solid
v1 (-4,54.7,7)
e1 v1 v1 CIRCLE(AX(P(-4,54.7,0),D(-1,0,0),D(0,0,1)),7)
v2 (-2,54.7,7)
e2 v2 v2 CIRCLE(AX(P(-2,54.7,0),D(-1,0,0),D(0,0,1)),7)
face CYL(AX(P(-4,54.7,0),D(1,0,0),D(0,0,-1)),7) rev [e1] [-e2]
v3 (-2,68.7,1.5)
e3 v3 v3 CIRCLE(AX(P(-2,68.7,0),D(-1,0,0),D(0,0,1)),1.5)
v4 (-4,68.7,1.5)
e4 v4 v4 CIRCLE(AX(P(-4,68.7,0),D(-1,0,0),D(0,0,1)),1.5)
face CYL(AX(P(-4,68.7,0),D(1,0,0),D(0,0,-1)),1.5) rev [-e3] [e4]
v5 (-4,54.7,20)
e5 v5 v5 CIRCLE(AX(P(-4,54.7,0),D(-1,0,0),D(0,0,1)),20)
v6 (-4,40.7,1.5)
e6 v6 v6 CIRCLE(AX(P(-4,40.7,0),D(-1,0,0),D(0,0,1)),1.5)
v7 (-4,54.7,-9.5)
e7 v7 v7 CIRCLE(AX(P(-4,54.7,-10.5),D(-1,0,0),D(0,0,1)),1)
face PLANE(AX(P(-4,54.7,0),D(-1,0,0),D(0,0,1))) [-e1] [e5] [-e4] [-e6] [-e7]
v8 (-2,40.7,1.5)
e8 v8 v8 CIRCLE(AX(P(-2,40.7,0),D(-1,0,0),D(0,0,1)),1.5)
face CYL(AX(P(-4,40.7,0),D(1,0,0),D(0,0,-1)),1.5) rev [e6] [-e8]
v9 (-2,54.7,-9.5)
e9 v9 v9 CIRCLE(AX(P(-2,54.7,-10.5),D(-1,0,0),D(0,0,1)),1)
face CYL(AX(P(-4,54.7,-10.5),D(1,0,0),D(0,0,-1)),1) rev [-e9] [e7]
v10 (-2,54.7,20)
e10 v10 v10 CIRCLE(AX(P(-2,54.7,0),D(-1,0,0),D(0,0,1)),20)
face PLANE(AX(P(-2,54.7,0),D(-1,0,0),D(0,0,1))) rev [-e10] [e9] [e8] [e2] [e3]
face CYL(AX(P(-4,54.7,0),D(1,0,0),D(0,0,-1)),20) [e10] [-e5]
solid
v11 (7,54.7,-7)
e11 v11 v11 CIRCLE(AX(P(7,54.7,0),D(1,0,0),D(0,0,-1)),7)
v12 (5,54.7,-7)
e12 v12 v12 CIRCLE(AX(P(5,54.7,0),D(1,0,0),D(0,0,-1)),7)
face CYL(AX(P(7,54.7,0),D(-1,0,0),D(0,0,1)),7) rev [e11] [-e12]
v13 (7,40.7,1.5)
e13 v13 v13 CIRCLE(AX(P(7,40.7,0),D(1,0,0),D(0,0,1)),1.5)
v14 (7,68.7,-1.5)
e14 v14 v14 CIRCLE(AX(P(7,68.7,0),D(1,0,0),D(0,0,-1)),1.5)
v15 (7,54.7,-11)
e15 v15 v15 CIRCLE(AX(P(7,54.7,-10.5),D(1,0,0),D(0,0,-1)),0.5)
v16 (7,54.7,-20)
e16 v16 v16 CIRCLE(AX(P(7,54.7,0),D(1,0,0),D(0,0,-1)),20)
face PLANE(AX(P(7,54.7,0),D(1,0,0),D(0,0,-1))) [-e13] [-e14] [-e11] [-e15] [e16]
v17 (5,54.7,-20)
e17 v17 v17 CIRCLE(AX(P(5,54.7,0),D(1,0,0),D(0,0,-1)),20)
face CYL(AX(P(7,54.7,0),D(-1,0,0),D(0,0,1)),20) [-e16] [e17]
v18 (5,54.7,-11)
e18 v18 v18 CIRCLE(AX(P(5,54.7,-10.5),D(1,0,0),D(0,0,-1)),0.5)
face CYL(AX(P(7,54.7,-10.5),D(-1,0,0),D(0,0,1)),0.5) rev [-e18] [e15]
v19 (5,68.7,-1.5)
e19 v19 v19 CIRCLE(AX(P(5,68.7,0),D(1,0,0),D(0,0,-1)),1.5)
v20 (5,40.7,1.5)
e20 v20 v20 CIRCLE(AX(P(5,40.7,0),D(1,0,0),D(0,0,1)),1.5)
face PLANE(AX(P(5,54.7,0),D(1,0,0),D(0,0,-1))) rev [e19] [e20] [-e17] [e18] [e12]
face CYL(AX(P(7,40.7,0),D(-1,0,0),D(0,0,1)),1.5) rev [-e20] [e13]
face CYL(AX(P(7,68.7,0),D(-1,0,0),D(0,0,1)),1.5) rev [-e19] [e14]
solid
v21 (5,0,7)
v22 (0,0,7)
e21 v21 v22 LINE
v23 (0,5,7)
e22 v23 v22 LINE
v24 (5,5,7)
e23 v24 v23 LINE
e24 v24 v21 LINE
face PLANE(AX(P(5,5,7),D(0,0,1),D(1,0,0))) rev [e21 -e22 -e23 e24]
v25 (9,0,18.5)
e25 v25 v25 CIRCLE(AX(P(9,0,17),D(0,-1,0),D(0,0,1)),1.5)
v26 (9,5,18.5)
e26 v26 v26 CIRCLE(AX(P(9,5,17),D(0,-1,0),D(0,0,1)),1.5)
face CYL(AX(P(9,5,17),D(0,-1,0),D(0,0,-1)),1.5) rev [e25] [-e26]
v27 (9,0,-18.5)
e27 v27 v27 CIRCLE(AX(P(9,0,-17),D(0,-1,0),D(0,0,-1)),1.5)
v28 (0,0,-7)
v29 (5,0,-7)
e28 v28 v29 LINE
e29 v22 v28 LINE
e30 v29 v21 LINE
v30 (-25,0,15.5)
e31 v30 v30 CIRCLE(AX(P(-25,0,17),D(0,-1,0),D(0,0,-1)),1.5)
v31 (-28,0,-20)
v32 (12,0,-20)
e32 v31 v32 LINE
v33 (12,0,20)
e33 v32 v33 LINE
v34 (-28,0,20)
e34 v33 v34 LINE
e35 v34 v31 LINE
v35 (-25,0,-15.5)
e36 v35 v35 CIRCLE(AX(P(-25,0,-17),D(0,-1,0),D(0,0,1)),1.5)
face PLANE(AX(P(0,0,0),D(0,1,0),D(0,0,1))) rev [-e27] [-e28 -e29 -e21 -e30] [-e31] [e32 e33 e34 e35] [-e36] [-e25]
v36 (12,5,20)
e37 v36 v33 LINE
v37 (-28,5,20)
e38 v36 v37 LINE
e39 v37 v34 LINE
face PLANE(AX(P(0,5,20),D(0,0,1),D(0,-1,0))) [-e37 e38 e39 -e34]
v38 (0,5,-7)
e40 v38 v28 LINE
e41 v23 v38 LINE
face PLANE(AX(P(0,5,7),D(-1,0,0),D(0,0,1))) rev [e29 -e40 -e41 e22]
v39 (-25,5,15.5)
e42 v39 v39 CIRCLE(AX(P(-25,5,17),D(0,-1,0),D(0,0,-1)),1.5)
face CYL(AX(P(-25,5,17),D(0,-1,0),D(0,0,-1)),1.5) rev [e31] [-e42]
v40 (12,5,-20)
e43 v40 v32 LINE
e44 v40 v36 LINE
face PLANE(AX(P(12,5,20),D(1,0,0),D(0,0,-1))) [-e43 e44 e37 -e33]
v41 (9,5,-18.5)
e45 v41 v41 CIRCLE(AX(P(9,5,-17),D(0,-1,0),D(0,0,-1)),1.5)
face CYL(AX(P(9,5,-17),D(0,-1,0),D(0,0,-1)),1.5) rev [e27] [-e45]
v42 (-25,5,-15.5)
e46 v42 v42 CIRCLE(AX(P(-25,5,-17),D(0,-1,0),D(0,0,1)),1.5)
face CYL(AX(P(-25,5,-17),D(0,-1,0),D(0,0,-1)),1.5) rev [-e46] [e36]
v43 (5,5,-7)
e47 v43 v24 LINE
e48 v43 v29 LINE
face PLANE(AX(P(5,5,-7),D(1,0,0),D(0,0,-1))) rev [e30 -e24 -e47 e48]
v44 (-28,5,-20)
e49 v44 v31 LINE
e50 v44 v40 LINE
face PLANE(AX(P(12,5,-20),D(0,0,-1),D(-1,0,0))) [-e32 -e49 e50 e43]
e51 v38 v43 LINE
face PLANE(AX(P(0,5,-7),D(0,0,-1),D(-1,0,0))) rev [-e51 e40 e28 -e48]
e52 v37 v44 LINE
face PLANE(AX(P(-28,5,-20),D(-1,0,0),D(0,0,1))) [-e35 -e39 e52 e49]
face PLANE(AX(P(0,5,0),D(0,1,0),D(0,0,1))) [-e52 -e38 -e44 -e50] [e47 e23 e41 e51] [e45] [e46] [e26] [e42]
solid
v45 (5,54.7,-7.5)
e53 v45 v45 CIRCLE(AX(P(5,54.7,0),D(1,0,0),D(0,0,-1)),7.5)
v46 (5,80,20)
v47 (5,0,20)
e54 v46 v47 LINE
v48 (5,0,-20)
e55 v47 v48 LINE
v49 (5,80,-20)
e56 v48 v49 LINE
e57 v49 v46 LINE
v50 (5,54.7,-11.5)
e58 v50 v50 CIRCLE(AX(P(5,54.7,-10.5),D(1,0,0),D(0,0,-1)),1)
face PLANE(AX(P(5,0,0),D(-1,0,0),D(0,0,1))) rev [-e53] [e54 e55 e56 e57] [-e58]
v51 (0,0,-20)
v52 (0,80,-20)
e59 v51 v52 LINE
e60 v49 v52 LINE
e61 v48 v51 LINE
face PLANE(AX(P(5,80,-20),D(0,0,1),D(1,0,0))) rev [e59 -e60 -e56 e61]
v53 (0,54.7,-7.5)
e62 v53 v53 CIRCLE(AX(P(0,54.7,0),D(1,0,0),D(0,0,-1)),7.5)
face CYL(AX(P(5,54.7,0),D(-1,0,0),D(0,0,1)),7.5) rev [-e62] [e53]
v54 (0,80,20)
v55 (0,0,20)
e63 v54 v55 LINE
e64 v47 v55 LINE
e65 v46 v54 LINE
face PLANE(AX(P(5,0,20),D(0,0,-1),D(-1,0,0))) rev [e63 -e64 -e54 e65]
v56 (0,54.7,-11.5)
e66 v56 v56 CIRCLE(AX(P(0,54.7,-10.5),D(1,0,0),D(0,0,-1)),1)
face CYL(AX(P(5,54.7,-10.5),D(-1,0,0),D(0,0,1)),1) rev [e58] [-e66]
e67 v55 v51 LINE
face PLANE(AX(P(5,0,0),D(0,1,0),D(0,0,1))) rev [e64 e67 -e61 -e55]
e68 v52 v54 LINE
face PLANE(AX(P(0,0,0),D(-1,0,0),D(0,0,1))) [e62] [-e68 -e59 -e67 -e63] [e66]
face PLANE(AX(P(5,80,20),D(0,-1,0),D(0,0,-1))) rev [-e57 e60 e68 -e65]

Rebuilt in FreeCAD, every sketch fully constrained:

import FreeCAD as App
import Part
import Sketcher

V = App.Vector
Q = App.Units.Quantity


def add_polygon(sketch, points):
    """Adds a closed chain of lines whose ends are joined by coincident constraints."""
    first, n = sketch.GeometryCount, len(points)
    for a, b in zip(points, points[1:] + points[:1]):
        sketch.addGeometry(Part.LineSegment(App.Vector(*a, 0), App.Vector(*b, 0)), False)
    for i in range(n):
        sketch.addConstraint(Sketcher.Constraint("Coincident", first + i, 2, first + (i + 1) % n, 1))

doc = App.newDocument("Part")
params = doc.addObject("Spreadsheet::Sheet", "Params")
for row, (alias, value) in enumerate([
    ("sketch1_diameter", "2 mm"),
    ("sketch1_diameter2", "15 mm"),
    ("sketch1_width", "80 mm"),
    ("sketch1_height", "40 mm"),
    ("pad1_length", "5 mm"),
    ("sketch2_diameter", "40 mm"),
    ("sketch2_diameter2", "3 mm"),
    ("sketch2_diameter3", "14 mm"),
    ("sketch2_diameter4", "1 mm"),
    ("pad2_length", "2 mm"),
    ("sketch3_diameter", "40 mm"),
    ("sketch3_diameter2", "3 mm"),
    ("sketch3_diameter3", "2 mm"),
    ("sketch3_diameter4", "14 mm"),
    ("pad3_length", "2 mm"),
    ("sketch4_diameter", "3 mm"),
    ("sketch4_width", "40 mm"),
    ("sketch4_width2", "5 mm"),
    ("sketch4_height", "14 mm"),
    ("pad4_length", "5 mm"),
], start=1):
    params.set(f"A{row}", alias)
    params.set(f"B{row}", "=" + value)
    params.setAlias(f"B{row}", alias)

body = doc.addObject("PartDesign::Body", "Body")

# Sketch on YZ plane
sketch1 = body.newObject("Sketcher::SketchObject", "Sketch")
sketch1.AttachmentSupport = (doc.getObject("YZ_Plane"), [""])
sketch1.MapMode = "FlatFace"
add_polygon(sketch1, [(0, 20), (0, -20), (80, -20), (80, 20)])  # lines 0-3
sketch1.addGeometry(Part.Circle(V(54.7, -10.5, 0), V(0, 0, 1), 1), False)  # 4
sketch1.addGeometry(Part.Circle(V(54.7, 0, 0), V(0, 0, 1), 7.5), False)  # 5
sketch1.addConstraint([
    Sketcher.Constraint("Vertical", 0),
    Sketcher.Constraint("Horizontal", 1),
    Sketcher.Constraint("Vertical", 2),
    Sketcher.Constraint("Horizontal", 3),
    Sketcher.Constraint("Symmetric", 0, 2, 3, 2, -1, 1),
    Sketcher.Constraint("PointOnObject", 5, 3, -1),
    Sketcher.Constraint("Vertical", 4, 3, 5, 3),
    Sketcher.Constraint("Diameter", 4, Q("2 mm")),
    Sketcher.Constraint("Diameter", 5, Q("15 mm")),
    Sketcher.Constraint("DistanceX", 1, 1, 1, 2, Q("80 mm")),
    Sketcher.Constraint("DistanceY", 0, 2, 0, 1, Q("40 mm")),
    Sketcher.Constraint("DistanceX", -1, 1, 4, 3, Q("54.7 mm")),
    Sketcher.Constraint("DistanceY", 4, 3, -1, 1, Q("10.5 mm")),
])
sketch1.setExpression("Constraints[11]", "Params.sketch1_diameter")
sketch1.setExpression("Constraints[12]", "Params.sketch1_diameter2")
sketch1.setExpression("Constraints[13]", "Params.sketch1_width")
sketch1.setExpression("Constraints[14]", "Params.sketch1_height")
pad1 = body.newObject("PartDesign::Pad", "Pad")
pad1.Profile = sketch1
pad1.setExpression("Length", "Params.pad1_length")
body2 = doc.addObject("PartDesign::Body", "Body001")

# Sketch on YZ plane
sketch2 = body2.newObject("Sketcher::SketchObject", "Sketch001")
sketch2.AttachmentSupport = (doc.getObject("YZ_Plane001"), [""])
sketch2.MapMode = "FlatFace"
sketch2.AttachmentOffset = App.Placement(V(0, 0, 5), App.Rotation())
sketch2.addGeometry([
    Part.Circle(V(54.7, 0, 0), V(0, 0, 1), 20),  # 0
    Part.Circle(V(40.7, 0, 0), V(0, 0, 1), 1.5),  # 1
    Part.Circle(V(54.7, 0, 0), V(0, 0, 1), 7),  # 2
    Part.Circle(V(68.7, 0, 0), V(0, 0, 1), 1.5),  # 3
    Part.Circle(V(54.7, -10.5, 0), V(0, 0, 1), 0.5),  # 4
], False)
sketch2.addConstraint([
    Sketcher.Constraint("Coincident", 2, 3, 0, 3),
    Sketcher.Constraint("Equal", 1, 3),
    Sketcher.Constraint("PointOnObject", 0, 3, -1),
    Sketcher.Constraint("PointOnObject", 1, 3, -1),
    Sketcher.Constraint("PointOnObject", 3, 3, -1),
    Sketcher.Constraint("Vertical", 2, 3, 4, 3),
    Sketcher.Constraint("Diameter", 0, Q("40 mm")),
    Sketcher.Constraint("Diameter", 1, Q("3 mm")),
    Sketcher.Constraint("Diameter", 2, Q("14 mm")),
    Sketcher.Constraint("Diameter", 4, Q("1 mm")),
    Sketcher.Constraint("DistanceX", 1, 3, 0, 3, Q("14 mm")),
    Sketcher.Constraint("DistanceX", 0, 3, 3, 3, Q("14 mm")),
    Sketcher.Constraint("DistanceX", -1, 1, 0, 3, Q("54.7 mm")),
    Sketcher.Constraint("DistanceY", 4, 3, -1, 1, Q("10.5 mm")),
])
sketch2.setExpression("Constraints[6]", "Params.sketch2_diameter")
sketch2.setExpression("Constraints[7]", "Params.sketch2_diameter2")
sketch2.setExpression("Constraints[8]", "Params.sketch2_diameter3")
sketch2.setExpression("Constraints[9]", "Params.sketch2_diameter4")
pad2 = body2.newObject("PartDesign::Pad", "Pad001")
pad2.Profile = sketch2
pad2.setExpression("Length", "Params.pad2_length")
body3 = doc.addObject("PartDesign::Body", "Body002")

# Sketch on YZ plane
sketch3 = body3.newObject("Sketcher::SketchObject", "Sketch002")
sketch3.AttachmentSupport = (doc.getObject("YZ_Plane002"), [""])
sketch3.MapMode = "FlatFace"
sketch3.AttachmentOffset = App.Placement(V(0, 0, -2), App.Rotation())
sketch3.addGeometry([
    Part.Circle(V(54.7, 0, 0), V(0, 0, 1), 20),  # 0
    Part.Circle(V(40.7, 0, 0), V(0, 0, 1), 1.5),  # 1
    Part.Circle(V(54.7, -10.5, 0), V(0, 0, 1), 1),  # 2
    Part.Circle(V(54.7, 0, 0), V(0, 0, 1), 7),  # 3
    Part.Circle(V(68.7, 0, 0), V(0, 0, 1), 1.5),  # 4
], False)
sketch3.addConstraint([
    Sketcher.Constraint("Coincident", 3, 3, 0, 3),
    Sketcher.Constraint("Equal", 1, 4),
    Sketcher.Constraint("PointOnObject", 0, 3, -1),
    Sketcher.Constraint("PointOnObject", 1, 3, -1),
    Sketcher.Constraint("PointOnObject", 4, 3, -1),
    Sketcher.Constraint("Vertical", 0, 3, 2, 3),
    Sketcher.Constraint("Diameter", 0, Q("40 mm")),
    Sketcher.Constraint("Diameter", 1, Q("3 mm")),
    Sketcher.Constraint("Diameter", 2, Q("2 mm")),
    Sketcher.Constraint("Diameter", 3, Q("14 mm")),
    Sketcher.Constraint("DistanceX", 1, 3, 0, 3, Q("14 mm")),
    Sketcher.Constraint("DistanceX", 0, 3, 4, 3, Q("14 mm")),
    Sketcher.Constraint("DistanceX", -1, 1, 0, 3, Q("54.7 mm")),
    Sketcher.Constraint("DistanceY", 2, 3, -1, 1, Q("10.5 mm")),
])
sketch3.setExpression("Constraints[6]", "Params.sketch3_diameter")
sketch3.setExpression("Constraints[7]", "Params.sketch3_diameter2")
sketch3.setExpression("Constraints[8]", "Params.sketch3_diameter3")
sketch3.setExpression("Constraints[9]", "Params.sketch3_diameter4")
pad3 = body3.newObject("PartDesign::Pad", "Pad002")
pad3.Profile = sketch3
pad3.setExpression("Length", "Params.pad3_length")
pad3.Reversed = True
body4 = doc.addObject("PartDesign::Body", "Body003")

# Sketch on XZ plane
sketch4 = body4.newObject("Sketcher::SketchObject", "Sketch003")
sketch4.AttachmentSupport = (doc.getObject("XZ_Plane003"), [""])
sketch4.MapMode = "FlatFace"
add_polygon(sketch4, [(12, 20), (-28, 20), (-28, -20), (12, -20)])  # lines 0-3
sketch4.addGeometry(Part.Circle(V(9, -17, 0), V(0, 0, 1), 1.5), False)  # 4
sketch4.addGeometry(Part.Circle(V(-25, -17, 0), V(0, 0, 1), 1.5), False)  # 5
add_polygon(sketch4, [(0, -7), (0, 7), (5, 7), (5, -7)])  # lines 6-9
sketch4.addGeometry(Part.Circle(V(9, 17, 0), V(0, 0, 1), 1.5), False)  # 10
sketch4.addGeometry(Part.Circle(V(-25, 17, 0), V(0, 0, 1), 1.5), False)  # 11
sketch4.addConstraint([
    Sketcher.Constraint("Horizontal", 0),
    Sketcher.Constraint("Vertical", 1),
    Sketcher.Constraint("Horizontal", 2),
    Sketcher.Constraint("Vertical", 3),
    Sketcher.Constraint("Vertical", 6),
    Sketcher.Constraint("Horizontal", 7),
    Sketcher.Constraint("Vertical", 8),
    Sketcher.Constraint("Horizontal", 9),
    Sketcher.Constraint("Equal", 4, 5),
    Sketcher.Constraint("Equal", 5, 10),
    Sketcher.Constraint("Equal", 10, 11),
    Sketcher.Constraint("Symmetric", 6, 2, 9, 2, -1, 1),
    Sketcher.Constraint("Symmetric", 4, 3, 10, 3, -1),
    Sketcher.Constraint("Symmetric", 5, 3, 11, 3, -1),
    Sketcher.Constraint("Horizontal", 4, 3, 5, 3),
    Sketcher.Constraint("Equal", 2, 1),
    Sketcher.Constraint("Diameter", 4, Q("3 mm")),
    Sketcher.Constraint("DistanceX", 0, 2, 0, 1, Q("40 mm")),
    Sketcher.Constraint("DistanceX", 7, 1, 7, 2, Q("5 mm")),
    Sketcher.Constraint("DistanceY", 6, 1, 6, 2, Q("14 mm")),
    Sketcher.Constraint("DistanceX", -1, 1, 4, 3, Q("9 mm")),
    Sketcher.Constraint("DistanceY", 4, 3, -1, 1, Q("17 mm")),
    Sketcher.Constraint("DistanceX", 5, 3, -1, 1, Q("25 mm")),
    Sketcher.Constraint("DistanceX", 0, 2, -1, 1, Q("28 mm")),
    Sketcher.Constraint("DistanceY", -1, 1, 0, 2, Q("20 mm")),
])
sketch4.setExpression("Constraints[24]", "Params.sketch4_diameter")
sketch4.setExpression("Constraints[25]", "Params.sketch4_width")
sketch4.setExpression("Constraints[26]", "Params.sketch4_width2")
sketch4.setExpression("Constraints[27]", "Params.sketch4_height")
pad4 = body4.newObject("PartDesign::Pad", "Pad003")
pad4.Profile = sketch4
pad4.setExpression("Length", "Params.pad4_length")
pad4.Reversed = True

doc.recompute()
